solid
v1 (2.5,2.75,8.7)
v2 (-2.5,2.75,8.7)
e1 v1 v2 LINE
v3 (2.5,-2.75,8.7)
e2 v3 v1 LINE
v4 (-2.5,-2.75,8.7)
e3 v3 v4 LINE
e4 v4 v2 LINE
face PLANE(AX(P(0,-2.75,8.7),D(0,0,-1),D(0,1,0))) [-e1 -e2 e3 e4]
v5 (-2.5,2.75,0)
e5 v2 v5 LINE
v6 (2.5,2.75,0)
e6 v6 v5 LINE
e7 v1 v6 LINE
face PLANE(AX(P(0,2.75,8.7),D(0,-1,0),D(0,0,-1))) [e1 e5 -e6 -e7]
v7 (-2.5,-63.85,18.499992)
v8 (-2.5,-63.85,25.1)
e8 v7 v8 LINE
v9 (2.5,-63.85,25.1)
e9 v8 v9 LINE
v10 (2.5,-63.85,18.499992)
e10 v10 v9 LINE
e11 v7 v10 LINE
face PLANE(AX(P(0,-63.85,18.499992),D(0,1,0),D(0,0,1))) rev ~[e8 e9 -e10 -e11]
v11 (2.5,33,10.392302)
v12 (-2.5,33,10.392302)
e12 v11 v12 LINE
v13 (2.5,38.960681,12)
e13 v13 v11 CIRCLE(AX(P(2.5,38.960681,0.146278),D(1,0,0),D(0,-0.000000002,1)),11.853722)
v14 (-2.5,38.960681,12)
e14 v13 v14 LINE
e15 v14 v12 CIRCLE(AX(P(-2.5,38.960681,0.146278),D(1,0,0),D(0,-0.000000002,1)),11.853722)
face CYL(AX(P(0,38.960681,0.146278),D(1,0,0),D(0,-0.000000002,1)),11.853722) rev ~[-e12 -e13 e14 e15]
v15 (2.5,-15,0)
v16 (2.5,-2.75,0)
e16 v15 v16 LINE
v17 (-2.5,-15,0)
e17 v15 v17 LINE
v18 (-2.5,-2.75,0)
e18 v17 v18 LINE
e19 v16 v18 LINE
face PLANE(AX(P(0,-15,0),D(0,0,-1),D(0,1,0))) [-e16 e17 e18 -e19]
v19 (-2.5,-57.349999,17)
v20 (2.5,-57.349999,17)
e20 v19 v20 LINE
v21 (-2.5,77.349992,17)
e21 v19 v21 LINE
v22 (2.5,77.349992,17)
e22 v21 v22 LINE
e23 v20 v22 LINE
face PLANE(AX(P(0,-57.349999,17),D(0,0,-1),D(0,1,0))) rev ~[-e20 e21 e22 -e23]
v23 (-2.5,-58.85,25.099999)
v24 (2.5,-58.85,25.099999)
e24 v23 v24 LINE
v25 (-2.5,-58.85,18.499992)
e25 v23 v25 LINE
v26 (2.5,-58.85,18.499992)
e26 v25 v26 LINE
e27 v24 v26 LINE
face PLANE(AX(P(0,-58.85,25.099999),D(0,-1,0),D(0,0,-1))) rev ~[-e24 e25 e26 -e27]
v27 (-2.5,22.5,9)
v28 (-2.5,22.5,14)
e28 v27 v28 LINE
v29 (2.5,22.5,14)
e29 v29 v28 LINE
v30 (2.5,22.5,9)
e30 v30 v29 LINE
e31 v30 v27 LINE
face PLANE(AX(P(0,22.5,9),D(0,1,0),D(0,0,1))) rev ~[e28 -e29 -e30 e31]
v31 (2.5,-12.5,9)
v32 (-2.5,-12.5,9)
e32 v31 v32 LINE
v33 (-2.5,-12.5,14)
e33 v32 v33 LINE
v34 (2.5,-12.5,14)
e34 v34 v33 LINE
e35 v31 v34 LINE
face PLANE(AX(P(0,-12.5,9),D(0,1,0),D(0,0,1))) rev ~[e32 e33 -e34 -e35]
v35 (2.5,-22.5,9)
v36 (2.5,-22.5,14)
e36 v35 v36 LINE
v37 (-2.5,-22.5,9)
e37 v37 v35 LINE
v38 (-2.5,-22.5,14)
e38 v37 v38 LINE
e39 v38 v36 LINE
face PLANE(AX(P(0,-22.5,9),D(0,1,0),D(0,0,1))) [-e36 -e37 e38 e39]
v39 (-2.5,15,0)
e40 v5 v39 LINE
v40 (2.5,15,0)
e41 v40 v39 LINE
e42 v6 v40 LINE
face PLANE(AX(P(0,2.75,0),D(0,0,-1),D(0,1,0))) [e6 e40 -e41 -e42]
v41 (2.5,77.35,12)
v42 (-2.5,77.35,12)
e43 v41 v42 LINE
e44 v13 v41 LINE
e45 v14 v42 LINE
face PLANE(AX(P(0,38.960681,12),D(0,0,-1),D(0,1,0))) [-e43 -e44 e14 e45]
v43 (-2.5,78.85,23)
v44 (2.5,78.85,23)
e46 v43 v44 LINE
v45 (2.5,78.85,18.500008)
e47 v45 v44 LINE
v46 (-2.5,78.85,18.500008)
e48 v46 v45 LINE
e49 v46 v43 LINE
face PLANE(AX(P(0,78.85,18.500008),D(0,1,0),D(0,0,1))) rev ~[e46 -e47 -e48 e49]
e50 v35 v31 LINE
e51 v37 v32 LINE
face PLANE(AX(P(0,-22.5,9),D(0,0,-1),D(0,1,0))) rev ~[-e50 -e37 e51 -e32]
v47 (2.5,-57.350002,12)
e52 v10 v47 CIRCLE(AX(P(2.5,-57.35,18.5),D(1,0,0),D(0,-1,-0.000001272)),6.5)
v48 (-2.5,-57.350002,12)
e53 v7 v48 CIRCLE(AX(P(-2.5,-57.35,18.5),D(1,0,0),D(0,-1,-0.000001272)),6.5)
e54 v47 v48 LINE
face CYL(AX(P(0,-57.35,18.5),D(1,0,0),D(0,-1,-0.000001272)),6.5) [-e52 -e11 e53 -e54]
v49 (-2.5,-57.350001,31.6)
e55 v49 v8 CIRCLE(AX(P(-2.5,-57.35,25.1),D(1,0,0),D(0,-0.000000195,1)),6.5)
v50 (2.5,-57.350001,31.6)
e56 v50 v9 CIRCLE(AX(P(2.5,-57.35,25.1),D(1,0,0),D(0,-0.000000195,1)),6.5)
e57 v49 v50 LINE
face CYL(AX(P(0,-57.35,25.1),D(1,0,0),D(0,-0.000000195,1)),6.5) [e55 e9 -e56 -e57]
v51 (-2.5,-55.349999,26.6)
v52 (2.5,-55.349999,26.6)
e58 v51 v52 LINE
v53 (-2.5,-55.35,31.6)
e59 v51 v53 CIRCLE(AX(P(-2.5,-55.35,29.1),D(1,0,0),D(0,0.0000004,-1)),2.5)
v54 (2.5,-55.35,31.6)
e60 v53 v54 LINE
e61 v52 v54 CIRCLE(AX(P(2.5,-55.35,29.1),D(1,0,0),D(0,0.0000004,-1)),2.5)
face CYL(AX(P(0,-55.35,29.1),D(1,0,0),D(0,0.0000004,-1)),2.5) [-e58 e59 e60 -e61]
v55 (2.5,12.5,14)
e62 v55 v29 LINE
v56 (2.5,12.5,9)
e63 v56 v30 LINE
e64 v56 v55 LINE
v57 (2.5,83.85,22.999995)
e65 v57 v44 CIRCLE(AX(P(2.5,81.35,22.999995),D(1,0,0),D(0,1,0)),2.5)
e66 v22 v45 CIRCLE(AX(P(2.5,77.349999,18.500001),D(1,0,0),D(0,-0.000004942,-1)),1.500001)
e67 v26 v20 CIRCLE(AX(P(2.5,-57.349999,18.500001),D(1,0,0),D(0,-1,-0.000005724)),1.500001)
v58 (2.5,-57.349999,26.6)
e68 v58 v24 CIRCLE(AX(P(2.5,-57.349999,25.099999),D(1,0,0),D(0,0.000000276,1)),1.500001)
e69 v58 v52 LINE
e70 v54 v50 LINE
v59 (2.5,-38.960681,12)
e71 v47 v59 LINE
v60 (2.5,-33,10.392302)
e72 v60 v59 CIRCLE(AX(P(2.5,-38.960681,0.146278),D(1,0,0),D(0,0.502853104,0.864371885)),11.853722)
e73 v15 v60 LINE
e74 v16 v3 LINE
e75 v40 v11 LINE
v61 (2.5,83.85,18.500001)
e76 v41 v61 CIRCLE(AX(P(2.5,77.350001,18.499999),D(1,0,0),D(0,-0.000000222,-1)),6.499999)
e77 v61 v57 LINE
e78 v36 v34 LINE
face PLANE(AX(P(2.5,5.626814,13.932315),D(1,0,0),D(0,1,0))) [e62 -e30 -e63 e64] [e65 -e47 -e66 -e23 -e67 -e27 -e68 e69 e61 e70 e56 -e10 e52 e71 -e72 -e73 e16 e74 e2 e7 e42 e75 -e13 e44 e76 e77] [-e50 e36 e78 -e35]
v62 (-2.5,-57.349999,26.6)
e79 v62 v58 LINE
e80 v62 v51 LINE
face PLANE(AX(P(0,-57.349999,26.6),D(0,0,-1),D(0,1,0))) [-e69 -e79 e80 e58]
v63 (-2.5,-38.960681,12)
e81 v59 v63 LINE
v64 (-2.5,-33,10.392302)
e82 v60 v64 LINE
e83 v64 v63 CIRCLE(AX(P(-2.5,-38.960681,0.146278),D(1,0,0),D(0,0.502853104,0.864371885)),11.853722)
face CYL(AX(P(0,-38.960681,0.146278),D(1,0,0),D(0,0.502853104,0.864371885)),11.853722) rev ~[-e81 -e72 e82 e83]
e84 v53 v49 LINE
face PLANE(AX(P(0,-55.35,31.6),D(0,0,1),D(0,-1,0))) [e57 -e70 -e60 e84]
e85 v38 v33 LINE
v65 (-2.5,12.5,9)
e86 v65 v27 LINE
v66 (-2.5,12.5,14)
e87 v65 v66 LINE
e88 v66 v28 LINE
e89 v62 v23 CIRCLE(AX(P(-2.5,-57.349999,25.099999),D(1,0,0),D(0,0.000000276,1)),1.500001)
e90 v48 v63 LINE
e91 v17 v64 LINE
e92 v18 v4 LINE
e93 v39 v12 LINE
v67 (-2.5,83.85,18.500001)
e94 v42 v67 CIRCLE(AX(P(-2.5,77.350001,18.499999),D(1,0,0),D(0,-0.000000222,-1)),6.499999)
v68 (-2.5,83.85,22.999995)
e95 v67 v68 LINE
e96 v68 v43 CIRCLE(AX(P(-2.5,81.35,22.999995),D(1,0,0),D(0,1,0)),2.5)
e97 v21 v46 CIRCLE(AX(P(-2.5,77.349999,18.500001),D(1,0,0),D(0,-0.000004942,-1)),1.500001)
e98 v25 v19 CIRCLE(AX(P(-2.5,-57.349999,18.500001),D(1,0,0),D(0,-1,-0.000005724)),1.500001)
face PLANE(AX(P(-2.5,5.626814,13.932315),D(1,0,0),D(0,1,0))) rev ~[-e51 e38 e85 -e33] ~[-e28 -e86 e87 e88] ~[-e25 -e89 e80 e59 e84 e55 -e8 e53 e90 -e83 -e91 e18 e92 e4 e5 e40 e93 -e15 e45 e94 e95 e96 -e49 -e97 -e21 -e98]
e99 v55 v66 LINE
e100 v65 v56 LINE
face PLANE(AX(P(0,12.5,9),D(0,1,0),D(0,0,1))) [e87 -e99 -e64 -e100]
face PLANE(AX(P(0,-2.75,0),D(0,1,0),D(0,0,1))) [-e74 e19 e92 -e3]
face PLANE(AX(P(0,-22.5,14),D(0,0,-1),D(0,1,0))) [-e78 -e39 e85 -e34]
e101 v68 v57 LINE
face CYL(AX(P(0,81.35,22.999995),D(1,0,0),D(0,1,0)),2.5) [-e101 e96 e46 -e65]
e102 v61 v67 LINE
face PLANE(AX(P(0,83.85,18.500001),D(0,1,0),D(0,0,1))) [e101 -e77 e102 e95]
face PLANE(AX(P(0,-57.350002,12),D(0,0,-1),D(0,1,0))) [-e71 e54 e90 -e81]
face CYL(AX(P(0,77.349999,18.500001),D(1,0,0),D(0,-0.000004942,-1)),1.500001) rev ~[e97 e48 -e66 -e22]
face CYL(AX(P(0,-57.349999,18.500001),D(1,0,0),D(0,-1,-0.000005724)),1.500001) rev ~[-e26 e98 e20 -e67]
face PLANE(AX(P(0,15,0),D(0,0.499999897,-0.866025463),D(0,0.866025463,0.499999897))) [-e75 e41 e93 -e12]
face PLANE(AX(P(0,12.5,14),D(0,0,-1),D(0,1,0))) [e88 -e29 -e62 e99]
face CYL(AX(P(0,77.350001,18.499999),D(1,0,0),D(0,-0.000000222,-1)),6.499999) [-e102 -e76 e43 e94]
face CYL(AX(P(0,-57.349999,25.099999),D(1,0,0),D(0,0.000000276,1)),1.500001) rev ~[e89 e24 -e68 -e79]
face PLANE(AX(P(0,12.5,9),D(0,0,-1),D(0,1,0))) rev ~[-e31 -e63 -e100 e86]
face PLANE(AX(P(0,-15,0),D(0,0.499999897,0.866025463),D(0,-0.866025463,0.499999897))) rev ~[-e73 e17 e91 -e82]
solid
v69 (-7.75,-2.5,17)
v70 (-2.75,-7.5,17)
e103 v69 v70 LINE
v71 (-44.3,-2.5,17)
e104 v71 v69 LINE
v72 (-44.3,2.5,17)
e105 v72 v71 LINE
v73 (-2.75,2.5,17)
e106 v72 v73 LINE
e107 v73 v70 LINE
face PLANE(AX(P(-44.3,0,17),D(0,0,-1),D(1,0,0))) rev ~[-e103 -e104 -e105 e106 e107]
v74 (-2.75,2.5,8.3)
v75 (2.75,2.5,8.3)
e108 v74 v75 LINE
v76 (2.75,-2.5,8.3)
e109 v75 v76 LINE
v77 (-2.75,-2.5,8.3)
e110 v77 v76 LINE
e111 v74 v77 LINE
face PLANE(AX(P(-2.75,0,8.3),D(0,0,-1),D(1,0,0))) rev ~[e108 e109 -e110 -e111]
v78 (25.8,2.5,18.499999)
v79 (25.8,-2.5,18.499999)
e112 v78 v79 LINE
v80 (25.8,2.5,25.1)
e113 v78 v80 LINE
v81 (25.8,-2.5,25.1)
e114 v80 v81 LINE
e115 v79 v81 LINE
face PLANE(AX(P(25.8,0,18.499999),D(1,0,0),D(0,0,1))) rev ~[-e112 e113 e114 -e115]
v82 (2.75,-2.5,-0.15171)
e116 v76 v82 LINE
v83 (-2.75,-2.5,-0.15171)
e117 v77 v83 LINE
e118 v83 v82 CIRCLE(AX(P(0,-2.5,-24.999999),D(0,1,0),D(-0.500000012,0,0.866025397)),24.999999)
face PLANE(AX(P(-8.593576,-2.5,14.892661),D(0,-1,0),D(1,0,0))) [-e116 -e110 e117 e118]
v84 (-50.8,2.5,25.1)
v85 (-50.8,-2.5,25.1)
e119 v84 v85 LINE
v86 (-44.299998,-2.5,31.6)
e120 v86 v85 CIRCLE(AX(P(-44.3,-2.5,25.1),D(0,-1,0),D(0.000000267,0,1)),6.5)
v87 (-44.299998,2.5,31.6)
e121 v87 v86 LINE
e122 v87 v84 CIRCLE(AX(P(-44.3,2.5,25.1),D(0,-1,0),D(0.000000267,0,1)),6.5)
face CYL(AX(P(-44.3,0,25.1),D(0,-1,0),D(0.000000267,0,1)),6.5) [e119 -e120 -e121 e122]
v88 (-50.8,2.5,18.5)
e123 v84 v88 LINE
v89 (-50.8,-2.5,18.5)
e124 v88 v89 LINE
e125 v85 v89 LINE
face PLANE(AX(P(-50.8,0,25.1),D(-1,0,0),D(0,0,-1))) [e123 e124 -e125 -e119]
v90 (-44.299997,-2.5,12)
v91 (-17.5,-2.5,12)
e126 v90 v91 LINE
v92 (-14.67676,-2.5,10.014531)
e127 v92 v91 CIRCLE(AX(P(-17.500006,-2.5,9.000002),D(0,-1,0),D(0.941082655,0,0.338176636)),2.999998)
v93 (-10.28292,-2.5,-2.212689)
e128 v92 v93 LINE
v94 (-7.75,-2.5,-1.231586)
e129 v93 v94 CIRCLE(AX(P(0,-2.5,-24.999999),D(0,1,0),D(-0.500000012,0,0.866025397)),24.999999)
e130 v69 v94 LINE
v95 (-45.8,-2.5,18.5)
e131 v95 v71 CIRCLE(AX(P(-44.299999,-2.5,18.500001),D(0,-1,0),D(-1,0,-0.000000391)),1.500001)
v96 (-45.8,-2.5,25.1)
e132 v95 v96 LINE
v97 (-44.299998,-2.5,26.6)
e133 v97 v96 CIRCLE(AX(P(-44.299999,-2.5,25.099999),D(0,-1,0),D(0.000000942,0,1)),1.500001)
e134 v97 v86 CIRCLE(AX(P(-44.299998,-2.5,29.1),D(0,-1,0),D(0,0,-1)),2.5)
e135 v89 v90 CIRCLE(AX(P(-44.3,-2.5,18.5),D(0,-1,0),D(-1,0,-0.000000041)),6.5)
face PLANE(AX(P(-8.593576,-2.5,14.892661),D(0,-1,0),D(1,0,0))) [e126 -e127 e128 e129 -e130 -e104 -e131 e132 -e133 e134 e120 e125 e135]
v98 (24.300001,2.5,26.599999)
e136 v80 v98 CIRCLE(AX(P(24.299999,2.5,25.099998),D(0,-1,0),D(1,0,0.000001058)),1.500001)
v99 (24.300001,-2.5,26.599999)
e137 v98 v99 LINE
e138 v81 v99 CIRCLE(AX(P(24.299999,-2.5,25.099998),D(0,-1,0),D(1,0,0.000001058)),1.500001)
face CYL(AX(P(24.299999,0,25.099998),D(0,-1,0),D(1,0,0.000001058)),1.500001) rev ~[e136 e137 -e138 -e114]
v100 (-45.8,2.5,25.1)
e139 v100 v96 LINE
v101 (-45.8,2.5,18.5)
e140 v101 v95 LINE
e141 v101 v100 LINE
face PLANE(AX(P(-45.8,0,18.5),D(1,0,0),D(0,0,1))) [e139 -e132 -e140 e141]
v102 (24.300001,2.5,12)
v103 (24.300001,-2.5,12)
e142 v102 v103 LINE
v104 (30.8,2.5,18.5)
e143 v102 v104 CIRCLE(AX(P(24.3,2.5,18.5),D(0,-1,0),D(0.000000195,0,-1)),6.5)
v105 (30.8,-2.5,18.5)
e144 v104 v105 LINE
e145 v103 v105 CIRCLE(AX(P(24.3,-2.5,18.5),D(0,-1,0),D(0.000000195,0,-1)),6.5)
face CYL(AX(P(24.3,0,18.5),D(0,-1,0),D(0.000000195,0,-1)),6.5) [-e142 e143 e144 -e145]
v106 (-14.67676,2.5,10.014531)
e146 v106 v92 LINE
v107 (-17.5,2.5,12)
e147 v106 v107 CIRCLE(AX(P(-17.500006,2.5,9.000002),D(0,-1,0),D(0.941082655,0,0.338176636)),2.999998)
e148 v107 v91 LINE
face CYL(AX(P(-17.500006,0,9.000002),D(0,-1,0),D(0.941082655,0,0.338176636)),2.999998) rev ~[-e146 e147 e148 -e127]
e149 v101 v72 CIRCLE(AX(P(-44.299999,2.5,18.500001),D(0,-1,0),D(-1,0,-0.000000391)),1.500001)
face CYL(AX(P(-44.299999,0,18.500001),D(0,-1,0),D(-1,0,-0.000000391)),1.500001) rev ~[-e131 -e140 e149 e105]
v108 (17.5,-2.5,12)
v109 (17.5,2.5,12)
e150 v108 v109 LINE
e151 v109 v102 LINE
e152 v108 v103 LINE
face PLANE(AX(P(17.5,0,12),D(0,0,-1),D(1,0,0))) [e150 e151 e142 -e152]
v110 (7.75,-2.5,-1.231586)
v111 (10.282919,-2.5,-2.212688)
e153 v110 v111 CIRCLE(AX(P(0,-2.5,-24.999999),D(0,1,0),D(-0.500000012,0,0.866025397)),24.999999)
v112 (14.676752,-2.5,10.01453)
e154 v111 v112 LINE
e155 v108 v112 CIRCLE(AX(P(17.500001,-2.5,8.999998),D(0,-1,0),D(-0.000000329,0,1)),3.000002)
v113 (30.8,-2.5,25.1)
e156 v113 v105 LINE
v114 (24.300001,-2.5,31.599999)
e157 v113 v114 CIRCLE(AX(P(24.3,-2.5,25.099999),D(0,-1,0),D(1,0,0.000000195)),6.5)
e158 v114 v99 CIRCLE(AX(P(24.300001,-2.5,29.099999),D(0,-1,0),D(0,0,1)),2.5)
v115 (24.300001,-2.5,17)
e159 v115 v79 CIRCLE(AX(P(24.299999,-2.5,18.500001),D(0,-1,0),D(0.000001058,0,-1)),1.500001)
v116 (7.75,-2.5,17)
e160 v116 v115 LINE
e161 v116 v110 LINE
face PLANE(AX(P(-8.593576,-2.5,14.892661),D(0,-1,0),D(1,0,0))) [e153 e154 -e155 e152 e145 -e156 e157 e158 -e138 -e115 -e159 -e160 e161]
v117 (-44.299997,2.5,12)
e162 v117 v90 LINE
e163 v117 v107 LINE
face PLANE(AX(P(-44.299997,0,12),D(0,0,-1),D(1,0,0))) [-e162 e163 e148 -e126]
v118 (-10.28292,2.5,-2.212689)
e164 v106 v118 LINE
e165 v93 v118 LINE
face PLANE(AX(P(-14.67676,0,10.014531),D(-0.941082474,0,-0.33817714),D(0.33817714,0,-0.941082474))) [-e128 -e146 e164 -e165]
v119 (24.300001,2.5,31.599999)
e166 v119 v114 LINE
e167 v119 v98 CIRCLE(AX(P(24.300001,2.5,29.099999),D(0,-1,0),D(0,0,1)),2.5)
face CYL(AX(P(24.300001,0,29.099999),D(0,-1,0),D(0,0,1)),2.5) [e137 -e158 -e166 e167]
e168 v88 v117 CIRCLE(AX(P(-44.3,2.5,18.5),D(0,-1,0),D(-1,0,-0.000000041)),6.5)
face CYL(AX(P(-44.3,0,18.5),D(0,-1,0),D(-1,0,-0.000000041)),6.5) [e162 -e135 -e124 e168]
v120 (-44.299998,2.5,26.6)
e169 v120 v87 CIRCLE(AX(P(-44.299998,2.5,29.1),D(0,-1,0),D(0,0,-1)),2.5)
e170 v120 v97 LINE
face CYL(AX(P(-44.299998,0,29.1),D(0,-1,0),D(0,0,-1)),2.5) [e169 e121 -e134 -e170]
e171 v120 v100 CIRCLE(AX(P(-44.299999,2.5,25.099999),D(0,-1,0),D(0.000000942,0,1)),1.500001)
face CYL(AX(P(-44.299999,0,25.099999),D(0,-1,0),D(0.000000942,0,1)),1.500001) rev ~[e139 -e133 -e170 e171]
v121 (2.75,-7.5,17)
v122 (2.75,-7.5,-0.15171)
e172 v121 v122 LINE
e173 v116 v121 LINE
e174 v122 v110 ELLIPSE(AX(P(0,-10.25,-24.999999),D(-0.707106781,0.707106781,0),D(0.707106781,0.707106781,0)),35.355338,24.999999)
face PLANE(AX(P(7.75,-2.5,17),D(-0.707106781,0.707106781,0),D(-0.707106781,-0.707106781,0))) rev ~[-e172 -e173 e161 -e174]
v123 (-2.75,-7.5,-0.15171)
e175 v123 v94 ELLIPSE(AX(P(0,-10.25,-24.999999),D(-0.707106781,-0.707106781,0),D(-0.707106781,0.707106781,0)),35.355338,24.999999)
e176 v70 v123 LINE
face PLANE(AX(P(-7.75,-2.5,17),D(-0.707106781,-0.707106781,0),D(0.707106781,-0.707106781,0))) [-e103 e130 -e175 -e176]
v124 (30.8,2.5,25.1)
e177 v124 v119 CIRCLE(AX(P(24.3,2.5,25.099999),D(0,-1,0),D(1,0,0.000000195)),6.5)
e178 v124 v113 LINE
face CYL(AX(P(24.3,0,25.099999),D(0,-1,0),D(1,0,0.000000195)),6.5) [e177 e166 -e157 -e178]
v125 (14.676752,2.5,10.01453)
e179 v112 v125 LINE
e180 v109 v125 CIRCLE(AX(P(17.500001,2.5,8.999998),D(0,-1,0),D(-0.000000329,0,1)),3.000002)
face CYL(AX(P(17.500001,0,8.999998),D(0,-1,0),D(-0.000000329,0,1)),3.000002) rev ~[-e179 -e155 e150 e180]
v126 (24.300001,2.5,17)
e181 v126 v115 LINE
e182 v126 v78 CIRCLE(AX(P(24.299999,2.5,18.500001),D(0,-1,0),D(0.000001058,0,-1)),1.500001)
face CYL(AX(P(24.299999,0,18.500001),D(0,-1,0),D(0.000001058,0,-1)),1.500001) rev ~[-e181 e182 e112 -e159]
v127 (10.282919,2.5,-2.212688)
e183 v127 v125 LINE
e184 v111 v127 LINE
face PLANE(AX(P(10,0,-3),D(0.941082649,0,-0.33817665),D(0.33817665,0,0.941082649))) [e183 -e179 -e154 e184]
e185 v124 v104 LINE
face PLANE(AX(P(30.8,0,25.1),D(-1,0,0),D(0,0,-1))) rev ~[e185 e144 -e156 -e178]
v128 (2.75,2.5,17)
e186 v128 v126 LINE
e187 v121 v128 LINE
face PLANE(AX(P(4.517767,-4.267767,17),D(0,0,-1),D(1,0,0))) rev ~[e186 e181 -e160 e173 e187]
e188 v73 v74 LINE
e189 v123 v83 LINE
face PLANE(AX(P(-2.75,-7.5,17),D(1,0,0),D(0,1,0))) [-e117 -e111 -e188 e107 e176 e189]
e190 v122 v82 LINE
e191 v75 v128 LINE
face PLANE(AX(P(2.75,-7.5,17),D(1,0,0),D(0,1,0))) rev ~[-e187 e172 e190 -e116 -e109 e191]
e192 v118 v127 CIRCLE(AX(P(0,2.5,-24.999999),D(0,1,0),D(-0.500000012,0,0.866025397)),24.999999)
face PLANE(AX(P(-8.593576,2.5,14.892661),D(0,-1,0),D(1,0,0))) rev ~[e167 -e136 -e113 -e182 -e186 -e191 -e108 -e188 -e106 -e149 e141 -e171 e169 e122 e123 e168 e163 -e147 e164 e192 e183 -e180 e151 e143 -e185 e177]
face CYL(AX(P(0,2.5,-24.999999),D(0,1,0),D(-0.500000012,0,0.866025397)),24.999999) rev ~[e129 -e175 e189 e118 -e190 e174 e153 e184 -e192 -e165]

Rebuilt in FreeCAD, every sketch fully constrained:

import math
import FreeCAD as App
import Part
import Sketcher
Q = App.Units.Quantity


def add_polygon(sketch, points):
    """Adds a closed chain of lines whose ends are joined by coincident constraints."""
    first, n = sketch.GeometryCount, len(points)
    for a, b in zip(points, points[1:] + points[:1]):
        sketch.addGeometry(Part.LineSegment(App.Vector(*a, 0), App.Vector(*b, 0)), False)
    for i in range(n):
        sketch.addConstraint(Sketcher.Constraint("Coincident", first + i, 2, first + (i + 1) % n, 1))

doc = App.newDocument("Part")
params = doc.addObject("Spreadsheet::Sheet", "Params")
for row, (alias, value) in enumerate([
    ("sketch1_radius", "2.5 mm"),
    ("sketch1_radius2", "1.500001 mm"),
    ("sketch1_width", "2 mm"),
    ("sketch1_width2", "10 mm"),
    ("sketch1_height", "5 mm"),
    ("pad1_length", "5 mm"),
    ("sketch2_radius", "2.999998 mm"),
    ("sketch2_radius2", "6.5 mm"),
    ("sketch2_radius3", "2.5 mm"),
    ("sketch2_width", "20 mm"),
    ("sketch2_width2", "6.800001 mm"),
    ("pad2_length", "5 mm"),
    ("sketch3_width", "5 mm"),
    ("pad3_length", "20 mm"),
    ("sketch4_radius", "24.999999 mm"),
    ("sketch4_width", "25 mm"),
    ("pocket1_length", "10 mm"),
], start=1):
    params.set(f"A{row}", alias)
    params.set(f"B{row}", "=" + value)
    params.setAlias(f"B{row}", alias)

body = doc.addObject("PartDesign::Body", "Body")

# Sketch on YZ plane
sketch1 = doc.addObject("Sketcher::SketchObject", "Sketch")
body.addObject(sketch1)
sketch1.AttachmentSupport = (doc.YZ_Plane, [""])
sketch1.MapMode = "FlatFace"
sketch1.addGeometry(Part.LineSegment(App.Vector(83.8, 18.5, 0), App.Vector(83.8, 23, 0)), False)  # 0
sketch1.addGeometry(Part.ArcOfCircle(Part.Circle(App.Vector(81.3, 23, 0), App.Vector(0, 0, 1), 2.5), math.radians(0), math.radians(180)), False)  # 1
sketch1.addGeometry(Part.LineSegment(App.Vector(78.8, 23, 0), App.Vector(78.8, 18.5, 0)), False)  # 2
sketch1.addGeometry(Part.ArcOfCircle(Part.Circle(App.Vector(77.3, 18.5, 0), App.Vector(0, 0, 1), 1.5), math.radians(-90), math.radians(0)), False)  # 3
sketch1.addGeometry(Part.LineSegment(App.Vector(77.3, 17, 0), App.Vector(-57.3, 17, 0)), False)  # 4
sketch1.addGeometry(Part.ArcOfCircle(Part.Circle(App.Vector(-57.3, 18.5, 0), App.Vector(0, 0, 1), 1.5), math.radians(-180), math.radians(-90)), False)  # 5
sketch1.addGeometry(Part.LineSegment(App.Vector(-58.9, 18.5, 0), App.Vector(-58.9, 25.1, 0)), False)  # 6
sketch1.addGeometry(Part.ArcOfCircle(Part.Circle(App.Vector(-57.3, 25.1, 0), App.Vector(0, 0, 1), 1.5), math.radians(90), math.radians(180)), False)  # 7
sketch1.addGeometry(Part.LineSegment(App.Vector(-57.3, 26.6, 0), App.Vector(-55.3, 26.6, 0)), False)  # 8
sketch1.addGeometry(Part.ArcOfCircle(Part.Circle(App.Vector(-55.4, 29.1, 0), App.Vector(0, 0, 1), 2.5), math.radians(-90), math.radians(90)), False)  # 9
sketch1.addGeometry(Part.LineSegment(App.Vector(-55.4, 31.6, 0), App.Vector(-57.4, 31.6, 0)), False)  # 10
sketch1.addGeometry(Part.ArcOfCircle(Part.Circle(App.Vector(-57.3, 25.1, 0), App.Vector(0, 0, 1), 6.5), math.radians(90), math.radians(180)), False)  # 11
sketch1.addGeometry(Part.LineSegment(App.Vector(-63.9, 25.1, 0), App.Vector(-63.9, 18.5, 0)), False)  # 12
sketch1.addGeometry(Part.ArcOfCircle(Part.Circle(App.Vector(-57.3, 18.5, 0), App.Vector(0, 0, 1), 6.5), math.radians(-180), math.radians(-90)), False)  # 13
sketch1.addGeometry(Part.LineSegment(App.Vector(-57.4, 12, 0), App.Vector(-39, 12, 0)), False)  # 14
sketch1.addGeometry(Part.ArcOfCircle(Part.Circle(App.Vector(-39, 0.1, 0), App.Vector(0, 0, 1), 11.9), math.radians(60), math.radians(90)), False)  # 15
sketch1.addGeometry(Part.LineSegment(App.Vector(-33, 10.4, 0), App.Vector(-15, 0, 0)), False)  # 16
sketch1.addGeometry(Part.LineSegment(App.Vector(-15, 0, 0), App.Vector(-2.8, 0, 0)), False)  # 17
sketch1.addGeometry(Part.LineSegment(App.Vector(-2.8, 0, 0), App.Vector(-2.8, 8.7, 0)), False)  # 18
sketch1.addGeometry(Part.LineSegment(App.Vector(-2.8, 8.7, 0), App.Vector(2.8, 8.7, 0)), False)  # 19
sketch1.addGeometry(Part.LineSegment(App.Vector(2.8, 8.7, 0), App.Vector(2.8, 0, 0)), False)  # 20
sketch1.addGeometry(Part.LineSegment(App.Vector(2.8, 0, 0), App.Vector(15, 0, 0)), False)  # 21
sketch1.addGeometry(Part.LineSegment(App.Vector(15, 0, 0), App.Vector(33, 10.4, 0)), False)  # 22
sketch1.addGeometry(Part.ArcOfCircle(Part.Circle(App.Vector(39, 0.1, 0), App.Vector(0, 0, 1), 11.9), math.radians(90), math.radians(120)), False)  # 23
sketch1.addGeometry(Part.LineSegment(App.Vector(39, 12, 0), App.Vector(77.3, 12, 0)), False)  # 24
sketch1.addGeometry(Part.ArcOfCircle(Part.Circle(App.Vector(77.4, 18.5, 0), App.Vector(0, 0, 1), 6.5), math.radians(-90), math.radians(0)), False)  # 25
add_polygon(sketch1, [(-12.5, 9), (-22.5, 9), (-22.5, 14), (-12.5, 14)])  # lines 26-29
add_polygon(sketch1, [(22.5, 9), (12.5, 9), (12.5, 14), (22.5, 14)])  # lines 30-33
sketch1.addConstraint(Sketcher.Constraint("Tangent", 0, 2, 1, 1))
sketch1.addConstraint(Sketcher.Constraint("Coincident", 1, 2, 2, 1))
sketch1.addConstraint(Sketcher.Constraint("Coincident", 2, 2, 3, 2))
sketch1.addConstraint(Sketcher.Constraint("Coincident", 3, 1, 4, 1))
sketch1.addConstraint(Sketcher.Constraint("Tangent", 4, 2, 5, 2))
sketch1.addConstraint(Sketcher.Constraint("Coincident", 5, 1, 6, 1))
sketch1.addConstraint(Sketcher.Constraint("Tangent", 6, 2, 7, 2))
sketch1.addConstraint(Sketcher.Constraint("Tangent", 7, 1, 8, 1))
sketch1.addConstraint(Sketcher.Constraint("Tangent", 8, 2, 9, 1))
sketch1.addConstraint(Sketcher.Constraint("Tangent", 9, 2, 10, 1))
sketch1.addConstraint(Sketcher.Constraint("Tangent", 10, 2, 11, 1))
sketch1.addConstraint(Sketcher.Constraint("Tangent", 11, 2, 12, 1))
sketch1.addConstraint(Sketcher.Constraint("Tangent", 12, 2, 13, 1))
sketch1.addConstraint(Sketcher.Constraint("Tangent", 13, 2, 14, 1))
sketch1.addConstraint(Sketcher.Constraint("Tangent", 14, 2, 15, 2))
sketch1.addConstraint(Sketcher.Constraint("Coincident", 15, 1, 16, 1))
sketch1.addConstraint(Sketcher.Constraint("Coincident", 16, 2, 17, 1))
sketch1.addConstraint(Sketcher.Constraint("Coincident", 17, 2, 18, 1))
sketch1.addConstraint(Sketcher.Constraint("Coincident", 18, 2, 19, 1))
sketch1.addConstraint(Sketcher.Constraint("Coincident", 19, 2, 20, 1))
sketch1.addConstraint(Sketcher.Constraint("Coincident", 20, 2, 21, 1))
sketch1.addConstraint(Sketcher.Constraint("Coincident", 21, 2, 22, 1))
sketch1.addConstraint(Sketcher.Constraint("Coincident", 22, 2, 23, 2))
sketch1.addConstraint(Sketcher.Constraint("Tangent", 23, 1, 24, 1))
sketch1.addConstraint(Sketcher.Constraint("Tangent", 24, 2, 25, 1))
sketch1.addConstraint(Sketcher.Constraint("Tangent", 25, 2, 0, 1))
sketch1.addConstraint(Sketcher.Constraint("Vertical", 0))
sketch1.addConstraint(Sketcher.Constraint("Vertical", 2))
sketch1.addConstraint(Sketcher.Constraint("Horizontal", 4))
sketch1.addConstraint(Sketcher.Constraint("Vertical", 6))
sketch1.addConstraint(Sketcher.Constraint("Horizontal", 8))
sketch1.addConstraint(Sketcher.Constraint("Horizontal", 10))
sketch1.addConstraint(Sketcher.Constraint("Vertical", 12))
sketch1.addConstraint(Sketcher.Constraint("Horizontal", 14))
sketch1.addConstraint(Sketcher.Constraint("Horizontal", 17))
sketch1.addConstraint(Sketcher.Constraint("Vertical", 18))
sketch1.addConstraint(Sketcher.Constraint("Horizontal", 19))
sketch1.addConstraint(Sketcher.Constraint("Vertical", 20))
sketch1.addConstraint(Sketcher.Constraint("Horizontal", 21))
sketch1.addConstraint(Sketcher.Constraint("Horizontal", 24))
sketch1.addConstraint(Sketcher.Constraint("Horizontal", 26))
sketch1.addConstraint(Sketcher.Constraint("Vertical", 27))
sketch1.addConstraint(Sketcher.Constraint("Horizontal", 28))
sketch1.addConstraint(Sketcher.Constraint("Vertical", 29))
sketch1.addConstraint(Sketcher.Constraint("Horizontal", 30))
sketch1.addConstraint(Sketcher.Constraint("Vertical", 31))
sketch1.addConstraint(Sketcher.Constraint("Horizontal", 32))
sketch1.addConstraint(Sketcher.Constraint("Vertical", 33))
sketch1.addConstraint(Sketcher.Constraint("Coincident", 11, 3, 7, 3))
sketch1.addConstraint(Sketcher.Constraint("Coincident", 13, 3, 5, 3))
sketch1.addConstraint(Sketcher.Constraint("Coincident", 25, 3, 3, 3))
sketch1.addConstraint(Sketcher.Constraint("Equal", 3, 5))
sketch1.addConstraint(Sketcher.Constraint("Equal", 5, 7))
sketch1.addConstraint(Sketcher.Constraint("Equal", 1, 9))
sketch1.addConstraint(Sketcher.Constraint("Equal", 15, 23))
sketch1.addConstraint(Sketcher.Constraint("Symmetric", 17, 2, 20, 2, -1, 1))
sketch1.addConstraint(Sketcher.Constraint("Symmetric", 16, 2, 21, 2, -2))
sketch1.addConstraint(Sketcher.Constraint("Symmetric", 15, 1, 22, 2, -2))
sketch1.addConstraint(Sketcher.Constraint("Symmetric", 29, 2, 30, 2, -2))
sketch1.addConstraint(Sketcher.Constraint("Symmetric", 27, 2, 32, 2, -2))
sketch1.addConstraint(Sketcher.Constraint("Horizontal", 5, 1, 12, 2))
sketch1.addConstraint(Sketcher.Constraint("Equal", 0, 2))
sketch1.addConstraint(Sketcher.Constraint("Radius", 1, Q("2.5 mm")))
sketch1.addConstraint(Sketcher.Constraint("Radius", 3, Q("1.500001 mm")))
sketch1.addConstraint(Sketcher.Constraint("DistanceX", 8, 1, 8, 2, Q("2 mm")))
sketch1.addConstraint(Sketcher.Constraint("DistanceX", 26, 2, 26, 1, Q("10 mm")))
sketch1.addConstraint(Sketcher.Constraint("DistanceY", 27, 1, 27, 2, Q("5 mm")))
sketch1.addConstraint(Sketcher.Constraint("Angle", 16, Q("-29.999993 deg")))
sketch1.addConstraint(Sketcher.Constraint("DistanceX", 19, 1, 19, 2, Q("5.5 mm")))
sketch1.addConstraint(Sketcher.Constraint("DistanceY", 18, 1, 18, 2, Q("8.7 mm")))
sketch1.addConstraint(Sketcher.Constraint("DistanceY", -1, 1, 1, 2, Q("23 mm")))
sketch1.addConstraint(Sketcher.Constraint("DistanceY", -1, 1, 3, 1, Q("17 mm")))
sketch1.addConstraint(Sketcher.Constraint("DistanceX", 15, 1, -1, 1, Q("33 mm")))
sketch1.addConstraint(Sketcher.Constraint("DistanceX", 16, 2, -1, 1, Q("15 mm")))
sketch1.addConstraint(Sketcher.Constraint("DistanceY", -1, 1, 26, 2, Q("9 mm")))
sketch1.addConstraint(Sketcher.Constraint("DistanceY", -1, 1, 7, 3, Q("25.099999 mm")))
sketch1.addConstraint(Sketcher.Constraint("DistanceX", 26, 2, -1, 1, Q("22.5 mm")))
sketch1.addConstraint(Sketcher.Constraint("DistanceX", 5, 3, 3, 3, Q("134.699999 mm")))
sketch1.addConstraint(Sketcher.Constraint("DistanceX", -1, 1, 1, 3, Q("81.35 mm")))
sketch1.addConstraint(Sketcher.Constraint("Radius", 15, Q("11.853722 mm")))
sketch1.addConstraint(Sketcher.Constraint("DistanceX", 4, 2, 4, 1, Q("134.699991 mm")))
sketch1.addConstraint(Sketcher.Constraint("DistanceY", 2, 2, 2, 1, Q("4.499992 mm")))
sketch1.setExpression("Constraints[70]", "Params.sketch1_radius")
sketch1.setExpression("Constraints[71]", "Params.sketch1_radius2")
sketch1.setExpression("Constraints[72]", "Params.sketch1_width")
sketch1.setExpression("Constraints[73]", "Params.sketch1_width2")
sketch1.setExpression("Constraints[74]", "Params.sketch1_height")
pad1 = doc.addObject("PartDesign::Pad", "Pad")
body.addObject(pad1)
pad1.Profile = sketch1
pad1.setExpression("Length", "Params.pad1_length")
pad1.Midplane = True
body2 = doc.addObject("PartDesign::Body", "Body001")
body2.AllowCompound = True

# Sketch on XZ plane
sketch2 = doc.addObject("Sketcher::SketchObject", "Sketch001")
body2.addObject(sketch2)
sketch2.AttachmentSupport = (doc.getObject("XZ_Plane001"), [""])
sketch2.MapMode = "FlatFace"
sketch2.addGeometry(Part.LineSegment(App.Vector(17.5, 12, 0), App.Vector(24.3, 12, 0)), False)
sketch2.addGeometry(Part.ArcOfCircle(Part.Circle(App.Vector(24.3, 18.5, 0), App.Vector(0, 0, 1), 6.5), math.radians(-90), math.radians(0)), False)
sketch2.addGeometry(Part.LineSegment(App.Vector(30.8, 18.5, 0), App.Vector(30.8, 25.1, 0)), False)
sketch2.addGeometry(Part.ArcOfCircle(Part.Circle(App.Vector(24.3, 25.1, 0), App.Vector(0, 0, 1), 6.5), math.radians(0), math.radians(90)), False)
sketch2.addGeometry(Part.ArcOfCircle(Part.Circle(App.Vector(24.3, 29.1, 0), App.Vector(0, 0, 1), 2.5), math.radians(90), math.radians(270)), False)
sketch2.addGeometry(Part.ArcOfCircle(Part.Circle(App.Vector(24.3, 25.1, 0), App.Vector(0, 0, 1), 1.5), math.radians(0), math.radians(90)), False)
sketch2.addGeometry(Part.LineSegment(App.Vector(25.8, 25.1, 0), App.Vector(25.8, 18.5, 0)), False)
sketch2.addGeometry(Part.ArcOfCircle(Part.Circle(App.Vector(24.3, 18.5, 0), App.Vector(0, 0, 1), 1.5), math.radians(-90), math.radians(0)), False)
sketch2.addGeometry(Part.LineSegment(App.Vector(24.3, 17, 0), App.Vector(2.8, 17, 0)), False)
sketch2.addGeometry(Part.LineSegment(App.Vector(2.8, 17, 0), App.Vector(2.8, 8.3, 0)), False)
sketch2.addGeometry(Part.LineSegment(App.Vector(2.8, 8.3, 0), App.Vector(-2.8, 8.3, 0)), False)
sketch2.addGeometry(Part.LineSegment(App.Vector(-2.8, 8.3, 0), App.Vector(-2.8, 17, 0)), False)
sketch2.addGeometry(Part.LineSegment(App.Vector(-2.8, 17, 0), App.Vector(-44.3, 17, 0)), False)
sketch2.addGeometry(Part.ArcOfCircle(Part.Circle(App.Vector(-44.3, 18.5, 0), App.Vector(0, 0, 1), 1.5), math.radians(-180), math.radians(-90)), False)
sketch2.addGeometry(Part.LineSegment(App.Vector(-45.8, 18.5, 0), App.Vector(-45.8, 25.1, 0)), False)
sketch2.addGeometry(Part.ArcOfCircle(Part.Circle(App.Vector(-44.3, 25.1, 0), App.Vector(0, 0, 1), 1.5), math.radians(90), math.radians(180)), False)
sketch2.addGeometry(Part.ArcOfCircle(Part.Circle(App.Vector(-44.3, 29.1, 0), App.Vector(0, 0, 1), 2.5), math.radians(-90), math.radians(90)), False)
sketch2.addGeometry(Part.ArcOfCircle(Part.Circle(App.Vector(-44.3, 25.1, 0), App.Vector(0, 0, 1), 6.5), math.radians(90), math.radians(180)), False)
sketch2.addGeometry(Part.LineSegment(App.Vector(-50.8, 25.1, 0), App.Vector(-50.8, 18.5, 0)), False)
sketch2.addGeometry(Part.ArcOfCircle(Part.Circle(App.Vector(-44.3, 18.5, 0), App.Vector(0, 0, 1), 6.5), math.radians(-180), math.radians(-90)), False)
sketch2.addGeometry(Part.LineSegment(App.Vector(-44.3, 12, 0), App.Vector(-17.5, 12, 0)), False)
sketch2.addGeometry(Part.ArcOfCircle(Part.Circle(App.Vector(-17.5, 9, 0), App.Vector(0, 0, 1), 3), math.radians(20), math.radians(90)), False)
sketch2.addGeometry(Part.LineSegment(App.Vector(-14.7, 10, 0), App.Vector(-10, -3, 0)), False)
sketch2.addGeometry(Part.LineSegment(App.Vector(-10, -3, 0), App.Vector(10, -3, 0)), False)
sketch2.addGeometry(Part.LineSegment(App.Vector(10, -3, 0), App.Vector(14.7, 10, 0)), False)
sketch2.addGeometry(Part.ArcOfCircle(Part.Circle(App.Vector(17.5, 9, 0), App.Vector(0, 0, 1), 3), math.radians(90), math.radians(160)), False)
sketch2.addConstraint(Sketcher.Constraint("Tangent", 0, 2, 1, 1))
sketch2.addConstraint(Sketcher.Constraint("Tangent", 1, 2, 2, 1))
sketch2.addConstraint(Sketcher.Constraint("Tangent", 2, 2, 3, 1))
sketch2.addConstraint(Sketcher.Constraint("Tangent", 3, 2, 4, 1))
sketch2.addConstraint(Sketcher.Constraint("Tangent", 4, 2, 5, 2))
sketch2.addConstraint(Sketcher.Constraint("Tangent", 5, 1, 6, 1))
sketch2.addConstraint(Sketcher.Constraint("Tangent", 6, 2, 7, 2))
sketch2.addConstraint(Sketcher.Constraint("Tangent", 7, 1, 8, 1))
sketch2.addConstraint(Sketcher.Constraint("Coincident", 8, 2, 9, 1))
sketch2.addConstraint(Sketcher.Constraint("Coincident", 9, 2, 10, 1))
sketch2.addConstraint(Sketcher.Constraint("Coincident", 10, 2, 11, 1))
sketch2.addConstraint(Sketcher.Constraint("Coincident", 11, 2, 12, 1))
sketch2.addConstraint(Sketcher.Constraint("Tangent", 12, 2, 13, 2))
sketch2.addConstraint(Sketcher.Constraint("Tangent", 13, 1, 14, 1))
sketch2.addConstraint(Sketcher.Constraint("Tangent", 14, 2, 15, 2))
sketch2.addConstraint(Sketcher.Constraint("Tangent", 15, 1, 16, 1))
sketch2.addConstraint(Sketcher.Constraint("Tangent", 16, 2, 17, 1))
sketch2.addConstraint(Sketcher.Constraint("Tangent", 17, 2, 18, 1))
sketch2.addConstraint(Sketcher.Constraint("Tangent", 18, 2, 19, 1))
sketch2.addConstraint(Sketcher.Constraint("Tangent", 19, 2, 20, 1))
sketch2.addConstraint(Sketcher.Constraint("Coincident", 20, 2, 21, 2))
sketch2.addConstraint(Sketcher.Constraint("Tangent", 21, 1, 22, 1))
sketch2.addConstraint(Sketcher.Constraint("Coincident", 22, 2, 23, 1))
sketch2.addConstraint(Sketcher.Constraint("Coincident", 23, 2, 24, 1))
sketch2.addConstraint(Sketcher.Constraint("Tangent", 24, 2, 25, 2))
sketch2.addConstraint(Sketcher.Constraint("Tangent", 25, 1, 0, 1))
sketch2.addConstraint(Sketcher.Constraint("Horizontal", 0))
sketch2.addConstraint(Sketcher.Constraint("Vertical", 2))
sketch2.addConstraint(Sketcher.Constraint("Vertical", 6))
sketch2.addConstraint(Sketcher.Constraint("Horizontal", 8))
sketch2.addConstraint(Sketcher.Constraint("Vertical", 9))
sketch2.addConstraint(Sketcher.Constraint("Horizontal", 10))
sketch2.addConstraint(Sketcher.Constraint("Vertical", 11))
sketch2.addConstraint(Sketcher.Constraint("Horizontal", 12))
sketch2.addConstraint(Sketcher.Constraint("Vertical", 14))
sketch2.addConstraint(Sketcher.Constraint("Vertical", 18))
sketch2.addConstraint(Sketcher.Constraint("Horizontal", 20))
sketch2.addConstraint(Sketcher.Constraint("Horizontal", 23))
sketch2.addConstraint(Sketcher.Constraint("Coincident", 5, 3, 3, 3))
sketch2.addConstraint(Sketcher.Constraint("Coincident", 7, 3, 1, 3))
sketch2.addConstraint(Sketcher.Constraint("Coincident", 17, 3, 15, 3))
sketch2.addConstraint(Sketcher.Constraint("Coincident", 19, 3, 13, 3))
sketch2.addConstraint(Sketcher.Constraint("Equal", 1, 3))
sketch2.addConstraint(Sketcher.Constraint("Equal", 7, 13))
sketch2.addConstraint(Sketcher.Constraint("Equal", 13, 15))
sketch2.addConstraint(Sketcher.Constraint("Equal", 4, 16))
sketch2.addConstraint(Sketcher.Constraint("Symmetric", 21, 3, 25, 3, -2))
sketch2.addConstraint(Sketcher.Constraint("Symmetric", 8, 2, 11, 2, -2))
sketch2.addConstraint(Sketcher.Constraint("Horizontal", 5, 3, 15, 3))
sketch2.addConstraint(Sketcher.Constraint("Horizontal", 21, 1, 24, 2))
sketch2.addConstraint(Sketcher.Constraint("Vertical", 3, 3, 4, 3))
sketch2.addConstraint(Sketcher.Constraint("Vertical", 15, 3, 16, 3))
sketch2.addConstraint(Sketcher.Constraint("Radius", 21, Q("2.999998 mm")))
sketch2.addConstraint(Sketcher.Constraint("Radius", 1, Q("6.5 mm")))
sketch2.addConstraint(Sketcher.Constraint("Radius", 4, Q("2.5 mm")))
sketch2.addConstraint(Sketcher.Constraint("DistanceX", 23, 1, 23, 2, Q("20 mm")))
sketch2.addConstraint(Sketcher.Constraint("DistanceX", 0, 1, 0, 2, Q("6.800001 mm")))
sketch2.addConstraint(Sketcher.Constraint("DistanceX", 10, 2, 10, 1, Q("5.5 mm")))
sketch2.addConstraint(Sketcher.Constraint("DistanceY", 2, 1, 2, 2, Q("6.6 mm")))
sketch2.addConstraint(Sketcher.Constraint("DistanceY", 9, 2, 9, 1, Q("8.7 mm")))
sketch2.addConstraint(Sketcher.Constraint("DistanceY", -1, 1, 21, 3, Q("9.000002 mm")))
sketch2.addConstraint(Sketcher.Constraint("DistanceY", 22, 2, -1, 1, Q("3 mm")))
sketch2.addConstraint(Sketcher.Constraint("DistanceX", 8, 2, 8, 1, Q("21.550001 mm")))
sketch2.addConstraint(Sketcher.Constraint("DistanceX", 12, 2, 12, 1, Q("41.55 mm")))
sketch2.addConstraint(Sketcher.Constraint("DistanceX", 20, 2, -1, 1, Q("17.5 mm")))
sketch2.setExpression("Constraints[52]", "Params.sketch2_radius")
sketch2.setExpression("Constraints[53]", "Params.sketch2_radius2")
sketch2.setExpression("Constraints[54]", "Params.sketch2_radius3")
sketch2.setExpression("Constraints[55]", "Params.sketch2_width")
sketch2.setExpression("Constraints[56]", "Params.sketch2_width2")
pad2 = doc.addObject("PartDesign::Pad", "Pad001")
body2.addObject(pad2)
pad2.Profile = sketch2
pad2.setExpression("Length", "Params.pad2_length")
pad2.Midplane = True

# Sketch on XY plane
sketch3 = doc.addObject("Sketcher::SketchObject", "Sketch002")
body2.addObject(sketch3)
sketch3.AttachmentSupport = (doc.getObject("XY_Plane001"), [""])
sketch3.MapMode = "FlatFace"
sketch3.AttachmentOffset = App.Placement(App.Vector(0, 0, 17), App.Rotation())
add_polygon(sketch3, [(3, -8), (8, -2), (3, -2)])  # lines 0-2
add_polygon(sketch3, [(-3, -8), (-3, -2), (-8, -2)])  # lines 3-5
sketch3.addConstraint(Sketcher.Constraint("Horizontal", 1))
sketch3.addConstraint(Sketcher.Constraint("Vertical", 2))
sketch3.addConstraint(Sketcher.Constraint("Vertical", 3))
sketch3.addConstraint(Sketcher.Constraint("Horizontal", 4))
sketch3.addConstraint(Sketcher.Constraint("Symmetric", 1, 2, 3, 2, -2))
sketch3.addConstraint(Sketcher.Constraint("Perpendicular", 0, 5))
sketch3.addConstraint(Sketcher.Constraint("Horizontal", 2, 2, 5, 2))
sketch3.addConstraint(Sketcher.Constraint("Equal", 1, 4))
sketch3.addConstraint(Sketcher.Constraint("DistanceX", 1, 2, 1, 1, Q("5 mm")))
sketch3.addConstraint(Sketcher.Constraint("DistanceY", 0, 2, -1, 1, Q("2.5 mm")))
sketch3.addConstraint(Sketcher.Constraint("DistanceX", 3, 2, 1, 2, Q("5.5 mm")))
sketch3.setExpression("Constraints[14]", "Params.sketch3_width")
pad3 = doc.addObject("PartDesign::Pad", "Pad002")
body2.addObject(pad3)
pad3.Profile = sketch3
pad3.setExpression("Length", "Params.pad3_length")
pad3.Reversed = True

# Sketch on XZ plane
sketch4 = doc.addObject("Sketcher::SketchObject", "Sketch003")
body2.addObject(sketch4)
sketch4.AttachmentSupport = (doc.getObject("XZ_Plane001"), [""])
sketch4.MapMode = "FlatFace"
sketch4.AttachmentOffset = App.Placement(App.Vector(0, 0, -2.5), App.Rotation())
sketch4.addGeometry(Part.ArcOfCircle(Part.Circle(App.Vector(0, -25, 0), App.Vector(0, 0, 1), 25), math.radians(60), math.radians(120)), False)
sketch4.addGeometry(Part.LineSegment(App.Vector(12, -3, 0), App.Vector(-12, -3, 0)), False)
sketch4.addConstraint(Sketcher.Constraint("Coincident", 0, 1, 1, 1))
sketch4.addConstraint(Sketcher.Constraint("Coincident", 1, 2, 0, 2))
sketch4.addConstraint(Sketcher.Constraint("Horizontal", 1))
sketch4.addConstraint(Sketcher.Constraint("PointOnObject", 0, 3, -2))
sketch4.addConstraint(Sketcher.Constraint("Radius", 0, Q("24.999999 mm")))
sketch4.addConstraint(Sketcher.Constraint("DistanceX", 1, 2, 1, 1, Q("25 mm")))
sketch4.addConstraint(Sketcher.Constraint("DistanceY", 0, 3, -1, 1, Q("24.999999 mm")))
sketch4.setExpression("Constraints[4]", "Params.sketch4_radius")
sketch4.setExpression("Constraints[5]", "Params.sketch4_width")
pocket1 = doc.addObject("PartDesign::Pocket", "Pocket")
body2.addObject(pocket1)
pocket1.Profile = sketch4
pocket1.setExpression("Length", "Params.pocket1_length")
pocket1.Reversed = True
doc.recompute()

boolean = doc.addObject("PartDesign::Boolean", "Boolean")
body2.addObject(boolean)
boolean.Type = "Fuse"
boolean.addObjects([body])

doc.recompute()
